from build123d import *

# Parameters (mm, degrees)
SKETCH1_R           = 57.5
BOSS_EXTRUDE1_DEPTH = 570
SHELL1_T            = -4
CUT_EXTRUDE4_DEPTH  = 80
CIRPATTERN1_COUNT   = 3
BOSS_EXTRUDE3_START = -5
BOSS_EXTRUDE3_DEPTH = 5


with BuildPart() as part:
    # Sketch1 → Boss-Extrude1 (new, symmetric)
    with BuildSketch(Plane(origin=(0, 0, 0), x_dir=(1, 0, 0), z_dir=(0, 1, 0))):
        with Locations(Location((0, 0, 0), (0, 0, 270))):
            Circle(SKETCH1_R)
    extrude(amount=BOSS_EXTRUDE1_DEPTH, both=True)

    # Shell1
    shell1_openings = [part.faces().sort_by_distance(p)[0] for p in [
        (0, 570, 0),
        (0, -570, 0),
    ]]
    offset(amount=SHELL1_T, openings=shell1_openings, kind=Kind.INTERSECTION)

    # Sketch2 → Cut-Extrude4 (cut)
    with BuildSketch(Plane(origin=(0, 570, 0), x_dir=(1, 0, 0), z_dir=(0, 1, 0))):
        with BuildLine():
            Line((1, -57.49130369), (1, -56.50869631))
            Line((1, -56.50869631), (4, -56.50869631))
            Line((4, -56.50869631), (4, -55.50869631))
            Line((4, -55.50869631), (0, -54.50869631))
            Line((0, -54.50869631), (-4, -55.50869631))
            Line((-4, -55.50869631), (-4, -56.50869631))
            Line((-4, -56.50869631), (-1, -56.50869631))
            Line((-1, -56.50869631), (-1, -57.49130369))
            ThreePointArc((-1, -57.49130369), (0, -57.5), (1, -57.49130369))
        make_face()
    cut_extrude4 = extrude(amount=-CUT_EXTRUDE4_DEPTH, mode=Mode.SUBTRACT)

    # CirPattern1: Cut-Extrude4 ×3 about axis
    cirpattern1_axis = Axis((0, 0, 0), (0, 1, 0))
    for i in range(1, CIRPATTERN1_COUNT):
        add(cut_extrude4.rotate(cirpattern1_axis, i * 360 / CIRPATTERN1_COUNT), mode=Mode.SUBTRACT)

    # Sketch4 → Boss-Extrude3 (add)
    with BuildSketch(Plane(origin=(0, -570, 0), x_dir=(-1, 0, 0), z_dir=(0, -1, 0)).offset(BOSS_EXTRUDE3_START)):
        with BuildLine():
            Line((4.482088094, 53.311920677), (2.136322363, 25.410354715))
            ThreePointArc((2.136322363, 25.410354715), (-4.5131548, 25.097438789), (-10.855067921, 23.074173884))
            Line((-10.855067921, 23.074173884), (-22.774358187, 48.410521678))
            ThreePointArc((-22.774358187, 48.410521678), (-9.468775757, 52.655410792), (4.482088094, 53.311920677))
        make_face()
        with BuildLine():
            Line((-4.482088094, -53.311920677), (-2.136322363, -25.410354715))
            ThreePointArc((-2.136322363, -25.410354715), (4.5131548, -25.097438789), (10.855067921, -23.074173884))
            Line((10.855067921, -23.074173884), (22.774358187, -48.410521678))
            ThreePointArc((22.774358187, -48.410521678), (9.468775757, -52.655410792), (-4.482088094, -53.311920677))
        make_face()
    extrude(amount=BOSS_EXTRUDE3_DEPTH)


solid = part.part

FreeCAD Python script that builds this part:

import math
import FreeCAD as App
import Part
import Sketcher
from FreeCAD import Vector


def faces_at(feature, points):
    """Names of the faces that lie closest to the given points."""
    faces = feature.Shape.Faces
    near = lambda p: min(range(len(faces)), key=lambda i: faces[i].distToShape(Part.Vertex(*p))[0])
    return sorted({f"Face{near(p) + 1}" for p in points})

doc = App.newDocument("Part")
body = doc.addObject("PartDesign::Body", "Body")

# Sketch on XZ plane
sketch1 = doc.addObject("Sketcher::SketchObject", "Sketch")
body.addObject(sketch1)
sketch1.AttachmentSupport = (doc.XZ_Plane, [""])
sketch1.MapMode = "FlatFace"
sketch1.addGeometry(Part.Circle(Vector(0, 0, 0), Vector(0, 0, 1), 58), False)
sketch1.addConstraint(Sketcher.Constraint("Coincident", 0, 3, -1, 1))
sketch1.addConstraint(Sketcher.Constraint("Diameter", 0, 115.0))
pad1 = doc.addObject("PartDesign::Pad", "Pad")
body.addObject(pad1)
pad1.Profile = sketch1
pad1.Length = 1140
pad1.Midplane = True
doc.recompute()

thickness = doc.addObject("PartDesign::Thickness", "Thickness")
body.addObject(thickness)
thickness.Base = (pad1, faces_at(pad1, [(0, 570, 0), (0, -570, 0)]))
thickness.Value = 4
thickness.Reversed = True
thickness.Join = "Intersection"

# Sketch on XZ plane
sketch2 = doc.addObject("Sketcher::SketchObject", "Sketch001")
body.addObject(sketch2)
sketch2.AttachmentSupport = (doc.XZ_Plane, [""])
sketch2.MapMode = "FlatFace"
sketch2.AttachmentOffset = App.Placement(Vector(0, 0, -570), App.Rotation())
sketch2.addGeometry(Part.LineSegment(Vector(1, 57.5, 0), Vector(1, 56.5, 0)), False)
sketch2.addGeometry(Part.LineSegment(Vector(1, 56.5, 0), Vector(4, 56.5, 0)), False)
sketch2.addGeometry(Part.LineSegment(Vector(4, 56.5, 0), Vector(4, 55.5, 0)), False)
sketch2.addGeometry(Part.LineSegment(Vector(4, 55.5, 0), Vector(0, 54.5, 0)), False)
sketch2.addGeometry(Part.LineSegment(Vector(0, 54.5, 0), Vector(-4, 55.5, 0)), False)
sketch2.addGeometry(Part.LineSegment(Vector(-4, 55.5, 0), Vector(-4, 56.5, 0)), False)
sketch2.addGeometry(Part.LineSegment(Vector(-4, 56.5, 0), Vector(-1, 56.5, 0)), False)
sketch2.addGeometry(Part.LineSegment(Vector(-1, 56.5, 0), Vector(-1, 57.5, 0)), False)
sketch2.addGeometry(Part.ArcOfCircle(Part.Circle(Vector(0, 0, 0), Vector(0, 0, 1), 57.5), math.radians(89), math.radians(91)), False)
sketch2.addConstraint(Sketcher.Constraint("Coincident", 0, 2, 1, 1))
sketch2.addConstraint(Sketcher.Constraint("Coincident", 1, 2, 2, 1))
sketch2.addConstraint(Sketcher.Constraint("Coincident", 2, 2, 3, 1))
sketch2.addConstraint(Sketcher.Constraint("Coincident", 3, 2, 4, 1))
sketch2.addConstraint(Sketcher.Constraint("Coincident", 4, 2, 5, 1))
sketch2.addConstraint(Sketcher.Constraint("Coincident", 5, 2, 6, 1))
sketch2.addConstraint(Sketcher.Constraint("Coincident", 6, 2, 7, 1))
sketch2.addConstraint(Sketcher.Constraint("Coincident", 7, 2, 8, 2))
sketch2.addConstraint(Sketcher.Constraint("Coincident", 8, 1, 0, 1))
sketch2.addConstraint(Sketcher.Constraint("Vertical", 0))
sketch2.addConstraint(Sketcher.Constraint("Horizontal", 1))
sketch2.addConstraint(Sketcher.Constraint("Vertical", 2))
sketch2.addConstraint(Sketcher.Constraint("Vertical", 5))
sketch2.addConstraint(Sketcher.Constraint("Horizontal", 6))
sketch2.addConstraint(Sketcher.Constraint("Vertical", 7))
sketch2.addConstraint(Sketcher.Constraint("Coincident", 8, 3, -1, 1))
sketch2.addConstraint(Sketcher.Constraint("Symmetric", 2, 2, 4, 2, -2))
sketch2.addConstraint(Sketcher.Constraint("Symmetric", 0, 2, 6, 2, -2))
sketch2.addConstraint(Sketcher.Constraint("PointOnObject", 3, 2, -2))
sketch2.addConstraint(Sketcher.Constraint("Radius", 8, 57.499999))
sketch2.addConstraint(Sketcher.Constraint("DistanceX", 1, 1, 1, 2, 3.0))
sketch2.addConstraint(Sketcher.Constraint("DistanceY", 2, 2, 2, 1, 1.0))
sketch2.addConstraint(Sketcher.Constraint("DistanceX", -1, 1, 0, 2, 1.0))
sketch2.addConstraint(Sketcher.Constraint("DistanceY", 3, 2, 0, 2, 2.0))
sketch2.addConstraint(Sketcher.Constraint("DistanceY", 0, 2, 0, 1, 0.982607))
pocket1 = doc.addObject("PartDesign::Pocket", "Pocket")
body.addObject(pocket1)
pocket1.Profile = sketch2
pocket1.Length = 80
pocket1.Reversed = True
doc.recompute()

polarpattern = doc.addObject("PartDesign::PolarPattern", "PolarPattern")
body.addObject(polarpattern)
polarpattern.Originals = [pocket1]
polarpattern.Axis = (doc.Y_Axis, [""])
polarpattern.Angle = 360
polarpattern.Occurrences = 3
body.Tip = polarpattern

# Sketch on XZ plane
sketch3 = doc.addObject("Sketcher::SketchObject", "Sketch002")
body.addObject(sketch3)
sketch3.AttachmentSupport = (doc.XZ_Plane, [""])
sketch3.MapMode = "FlatFace"
sketch3.AttachmentOffset = App.Placement(Vector(0, 0, 565), App.Rotation())
sketch3.addGeometry(Part.LineSegment(Vector(-2, -25, 0), Vector(-4, -53, 0)), False)
sketch3.addGeometry(Part.ArcOfCircle(Part.Circle(Vector(0, 0, 0), Vector(0, 0, 1), 53), math.radians(-95), math.radians(-65)), False)
sketch3.addGeometry(Part.LineSegment(Vector(23, -48, 0), Vector(11, -23, 0)), False)
sketch3.addGeometry(Part.ArcOfCircle(Part.Circle(Vector(0, 0, 0), Vector(0, 0, 1), 25), math.radians(-95), math.radians(-65)), False)
sketch3.addGeometry(Part.LineSegment(Vector(2, 25, 0), Vector(4, 53, 0)), False)
sketch3.addGeometry(Part.ArcOfCircle(Part.Circle(Vector(0, 0, 0), Vector(0, 0, 1), 53), math.radians(85), math.radians(115)), False)
sketch3.addGeometry(Part.LineSegment(Vector(-23, 48, 0), Vector(-11, 23, 0)), False)
sketch3.addGeometry(Part.ArcOfCircle(Part.Circle(Vector(0, 0, 0), Vector(0, 0, 1), 25), math.radians(85), math.radians(115)), False)
sketch3.addConstraint(Sketcher.Constraint("Coincident", 0, 2, 1, 1))
sketch3.addConstraint(Sketcher.Constraint("Coincident", 1, 2, 2, 1))
sketch3.addConstraint(Sketcher.Constraint("Coincident", 2, 2, 3, 2))
sketch3.addConstraint(Sketcher.Constraint("Coincident", 3, 1, 0, 1))
sketch3.addConstraint(Sketcher.Constraint("Coincident", 4, 2, 5, 1))
sketch3.addConstraint(Sketcher.Constraint("Coincident", 5, 2, 6, 1))
sketch3.addConstraint(Sketcher.Constraint("Coincident", 6, 2, 7, 2))
sketch3.addConstraint(Sketcher.Constraint("Coincident", 7, 1, 4, 1))
sketch3.addConstraint(Sketcher.Constraint("Coincident", 1, 3, -1, 1))
sketch3.addConstraint(Sketcher.Constraint("Coincident", 3, 3, -1, 1))
sketch3.addConstraint(Sketcher.Constraint("Coincident", 5, 3, -1, 1))
sketch3.addConstraint(Sketcher.Constraint("Coincident", 7, 3, -1, 1))
sketch3.addConstraint(Sketcher.Constraint("Equal", 1, 5))
sketch3.addConstraint(Sketcher.Constraint("Equal", 3, 7))
sketch3.addConstraint(Sketcher.Constraint("Parallel", 0, 4))
sketch3.addConstraint(Sketcher.Constraint("Parallel", 2, 6))
sketch3.addConstraint(Sketcher.Constraint("Radius", 1, 53.5))
sketch3.addConstraint(Sketcher.Constraint("Radius", 3, 25.5))
sketch3.addConstraint(Sketcher.Constraint("DistanceY", 0, 2, 1, 2, 4.901399))
sketch3.addConstraint(Sketcher.Constraint("DistanceY", 5, 2, 4, 2, 4.901399))
sketch3.addConstraint(Sketcher.Constraint("DistanceX", 0, 2, -1, 1, 4.482088))
sketch3.addConstraint(Sketcher.Constraint("DistanceX", -1, 1, 4, 2, 4.482088))
sketch3.addConstraint(Sketcher.Constraint("DistanceX", 2, 2, 1, 2, 11.91929))
sketch3.addConstraint(Sketcher.Constraint("DistanceX", 3, 1, 2, 2, 12.99139))
pad2 = doc.addObject("PartDesign::Pad", "Pad001")
body.addObject(pad2)
pad2.Profile = sketch3
pad2.Length = 5

doc.recompute()
